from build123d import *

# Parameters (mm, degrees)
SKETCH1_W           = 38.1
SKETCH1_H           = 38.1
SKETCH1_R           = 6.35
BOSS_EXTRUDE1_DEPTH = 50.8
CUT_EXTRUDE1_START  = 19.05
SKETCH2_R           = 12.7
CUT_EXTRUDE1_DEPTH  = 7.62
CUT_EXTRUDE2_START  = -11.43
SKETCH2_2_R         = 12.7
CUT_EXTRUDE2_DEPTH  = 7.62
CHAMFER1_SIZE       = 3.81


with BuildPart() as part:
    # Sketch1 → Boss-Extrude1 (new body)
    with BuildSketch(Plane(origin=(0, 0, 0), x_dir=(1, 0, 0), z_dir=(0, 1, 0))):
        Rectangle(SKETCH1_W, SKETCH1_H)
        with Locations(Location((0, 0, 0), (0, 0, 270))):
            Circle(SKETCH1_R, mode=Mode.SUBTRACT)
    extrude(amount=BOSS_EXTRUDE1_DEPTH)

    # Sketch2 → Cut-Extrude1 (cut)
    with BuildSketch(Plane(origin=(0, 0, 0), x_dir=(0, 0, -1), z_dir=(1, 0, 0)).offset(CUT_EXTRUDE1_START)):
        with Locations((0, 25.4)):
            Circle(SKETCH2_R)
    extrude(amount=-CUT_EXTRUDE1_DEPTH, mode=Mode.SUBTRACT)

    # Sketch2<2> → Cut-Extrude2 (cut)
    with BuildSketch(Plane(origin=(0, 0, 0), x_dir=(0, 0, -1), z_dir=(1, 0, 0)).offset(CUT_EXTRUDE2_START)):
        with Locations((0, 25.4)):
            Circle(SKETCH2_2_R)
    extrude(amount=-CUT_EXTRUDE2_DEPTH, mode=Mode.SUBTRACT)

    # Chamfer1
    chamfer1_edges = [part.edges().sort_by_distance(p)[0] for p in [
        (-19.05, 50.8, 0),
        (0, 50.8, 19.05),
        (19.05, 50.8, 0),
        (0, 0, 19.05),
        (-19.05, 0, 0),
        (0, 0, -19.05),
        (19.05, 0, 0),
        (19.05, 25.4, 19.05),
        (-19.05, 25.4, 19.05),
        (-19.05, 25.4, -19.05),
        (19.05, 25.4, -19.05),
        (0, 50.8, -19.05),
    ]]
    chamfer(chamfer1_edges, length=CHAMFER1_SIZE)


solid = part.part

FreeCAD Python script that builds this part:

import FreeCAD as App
import Part
import Sketcher

V = App.Vector
Q = App.Units.Quantity


def edges_at(feature, points):
    """Names of the edges that pass closest to the given points."""
    edges = feature.Shape.Edges
    near = lambda p: min(range(len(edges)), key=lambda i: edges[i].distToShape(Part.Vertex(*p))[0])
    return sorted({f"Edge{near(p) + 1}" for p in points})

doc = App.newDocument("Part")
body = doc.addObject("PartDesign::Body", "Body")

# Sketch on XZ plane
sketch1 = body.newObject("Sketcher::SketchObject", "Sketch")
sketch1.AttachmentSupport = (doc.getObject("XZ_Plane"), [""])
sketch1.MapMode = "FlatFace"
sketch1.addGeometry([
    Part.LineSegment(V(-19.05, -19.05, 0), V(-19.05, 19.05, 0)),  # 0
    Part.LineSegment(V(-19.05, 19.05, 0), V(19.05, 19.05, 0)),  # 1
    Part.LineSegment(V(19.05, 19.05, 0), V(19.05, -19.05, 0)),  # 2
    Part.LineSegment(V(19.05, -19.05, 0), V(-19.05, -19.05, 0)),  # 3
    Part.Circle(V(0, 0, 0), V(0, 0, 1), 6.35),  # 4
], False)
sketch1.addConstraint([
    Sketcher.Constraint("Coincident", 0, 2, 1, 1),
    Sketcher.Constraint("Coincident", 1, 2, 2, 1),
    Sketcher.Constraint("Coincident", 2, 2, 3, 1),
    Sketcher.Constraint("Coincident", 3, 2, 0, 1),
    Sketcher.Constraint("Vertical", 0),
    Sketcher.Constraint("Horizontal", 1),
    Sketcher.Constraint("Vertical", 2),
    Sketcher.Constraint("Horizontal", 3),
    Sketcher.Constraint("Coincident", 4, 3, -1, 1),
    Sketcher.Constraint("Symmetric", 0, 2, 2, 2, -1, 1),
    Sketcher.Constraint("Equal", 3, 0),
    Sketcher.Constraint("Diameter", 4, Q("0.5 in")),
    Sketcher.Constraint("DistanceX", 1, 1, 1, 2, Q("1.5 in")),
])
pad1 = body.newObject("PartDesign::Pad", "Pad")
pad1.Profile = sketch1
pad1.Length = Q("2 in")
pad1.Reversed = True

# Sketch on YZ plane
sketch2 = body.newObject("Sketcher::SketchObject", "Sketch001")
sketch2.AttachmentSupport = (doc.getObject("YZ_Plane"), [""])
sketch2.MapMode = "FlatFace"
sketch2.AttachmentOffset = App.Placement(V(0, 0, 0.75 * 25.4), App.Rotation())
sketch2.addGeometry(Part.Circle(V(25.4, 0, 0), V(0, 0, 1), 12.7), False)
sketch2.addConstraint([
    Sketcher.Constraint("PointOnObject", 0, 3, -1),
    Sketcher.Constraint("Diameter", 0, Q("1 in")),
    Sketcher.Constraint("DistanceX", -1, 1, 0, 3, Q("1 in")),
])
pocket1 = body.newObject("PartDesign::Pocket", "Pocket")
pocket1.Profile = sketch2
pocket1.Length = Q("0.3 in")

# Sketch on YZ plane
sketch3 = body.newObject("Sketcher::SketchObject", "Sketch002")
sketch3.AttachmentSupport = (doc.getObject("YZ_Plane"), [""])
sketch3.MapMode = "FlatFace"
sketch3.AttachmentOffset = App.Placement(V(0, 0, -0.45 * 25.4), App.Rotation())
sketch3.addGeometry(Part.Circle(V(25.4, 0, 0), V(0, 0, 1), 12.7), False)
sketch3.addConstraint([
    Sketcher.Constraint("PointOnObject", 0, 3, -1),
    Sketcher.Constraint("Diameter", 0, Q("1 in")),
    Sketcher.Constraint("DistanceX", -1, 1, 0, 3, Q("1 in")),
])
pocket2 = body.newObject("PartDesign::Pocket", "Pocket001")
pocket2.Profile = sketch3
pocket2.Length = Q("0.3 in")
doc.recompute()

chamfer = body.newObject("PartDesign::Chamfer", "Chamfer")
chamfer.Base = (pocket2, edges_at(pocket2, [
    (-19.05, 50.8, 0),
    (0, 50.8, 19.05),
    (19.05, 50.8, 0),
    (0, 0, 19.05),
    (-19.05, 0, 0),
    (0, 0, -19.05),
    (19.05, 0, 0),
    (19.05, 25.4, 19.05),
    (-19.05, 25.4, 19.05),
    (-19.05, 25.4, -19.05),
    (19.05, 25.4, -19.05),
    (0, 50.8, -19.05),
]))
chamfer.Size = Q("0.15 in")

doc.recompute()
